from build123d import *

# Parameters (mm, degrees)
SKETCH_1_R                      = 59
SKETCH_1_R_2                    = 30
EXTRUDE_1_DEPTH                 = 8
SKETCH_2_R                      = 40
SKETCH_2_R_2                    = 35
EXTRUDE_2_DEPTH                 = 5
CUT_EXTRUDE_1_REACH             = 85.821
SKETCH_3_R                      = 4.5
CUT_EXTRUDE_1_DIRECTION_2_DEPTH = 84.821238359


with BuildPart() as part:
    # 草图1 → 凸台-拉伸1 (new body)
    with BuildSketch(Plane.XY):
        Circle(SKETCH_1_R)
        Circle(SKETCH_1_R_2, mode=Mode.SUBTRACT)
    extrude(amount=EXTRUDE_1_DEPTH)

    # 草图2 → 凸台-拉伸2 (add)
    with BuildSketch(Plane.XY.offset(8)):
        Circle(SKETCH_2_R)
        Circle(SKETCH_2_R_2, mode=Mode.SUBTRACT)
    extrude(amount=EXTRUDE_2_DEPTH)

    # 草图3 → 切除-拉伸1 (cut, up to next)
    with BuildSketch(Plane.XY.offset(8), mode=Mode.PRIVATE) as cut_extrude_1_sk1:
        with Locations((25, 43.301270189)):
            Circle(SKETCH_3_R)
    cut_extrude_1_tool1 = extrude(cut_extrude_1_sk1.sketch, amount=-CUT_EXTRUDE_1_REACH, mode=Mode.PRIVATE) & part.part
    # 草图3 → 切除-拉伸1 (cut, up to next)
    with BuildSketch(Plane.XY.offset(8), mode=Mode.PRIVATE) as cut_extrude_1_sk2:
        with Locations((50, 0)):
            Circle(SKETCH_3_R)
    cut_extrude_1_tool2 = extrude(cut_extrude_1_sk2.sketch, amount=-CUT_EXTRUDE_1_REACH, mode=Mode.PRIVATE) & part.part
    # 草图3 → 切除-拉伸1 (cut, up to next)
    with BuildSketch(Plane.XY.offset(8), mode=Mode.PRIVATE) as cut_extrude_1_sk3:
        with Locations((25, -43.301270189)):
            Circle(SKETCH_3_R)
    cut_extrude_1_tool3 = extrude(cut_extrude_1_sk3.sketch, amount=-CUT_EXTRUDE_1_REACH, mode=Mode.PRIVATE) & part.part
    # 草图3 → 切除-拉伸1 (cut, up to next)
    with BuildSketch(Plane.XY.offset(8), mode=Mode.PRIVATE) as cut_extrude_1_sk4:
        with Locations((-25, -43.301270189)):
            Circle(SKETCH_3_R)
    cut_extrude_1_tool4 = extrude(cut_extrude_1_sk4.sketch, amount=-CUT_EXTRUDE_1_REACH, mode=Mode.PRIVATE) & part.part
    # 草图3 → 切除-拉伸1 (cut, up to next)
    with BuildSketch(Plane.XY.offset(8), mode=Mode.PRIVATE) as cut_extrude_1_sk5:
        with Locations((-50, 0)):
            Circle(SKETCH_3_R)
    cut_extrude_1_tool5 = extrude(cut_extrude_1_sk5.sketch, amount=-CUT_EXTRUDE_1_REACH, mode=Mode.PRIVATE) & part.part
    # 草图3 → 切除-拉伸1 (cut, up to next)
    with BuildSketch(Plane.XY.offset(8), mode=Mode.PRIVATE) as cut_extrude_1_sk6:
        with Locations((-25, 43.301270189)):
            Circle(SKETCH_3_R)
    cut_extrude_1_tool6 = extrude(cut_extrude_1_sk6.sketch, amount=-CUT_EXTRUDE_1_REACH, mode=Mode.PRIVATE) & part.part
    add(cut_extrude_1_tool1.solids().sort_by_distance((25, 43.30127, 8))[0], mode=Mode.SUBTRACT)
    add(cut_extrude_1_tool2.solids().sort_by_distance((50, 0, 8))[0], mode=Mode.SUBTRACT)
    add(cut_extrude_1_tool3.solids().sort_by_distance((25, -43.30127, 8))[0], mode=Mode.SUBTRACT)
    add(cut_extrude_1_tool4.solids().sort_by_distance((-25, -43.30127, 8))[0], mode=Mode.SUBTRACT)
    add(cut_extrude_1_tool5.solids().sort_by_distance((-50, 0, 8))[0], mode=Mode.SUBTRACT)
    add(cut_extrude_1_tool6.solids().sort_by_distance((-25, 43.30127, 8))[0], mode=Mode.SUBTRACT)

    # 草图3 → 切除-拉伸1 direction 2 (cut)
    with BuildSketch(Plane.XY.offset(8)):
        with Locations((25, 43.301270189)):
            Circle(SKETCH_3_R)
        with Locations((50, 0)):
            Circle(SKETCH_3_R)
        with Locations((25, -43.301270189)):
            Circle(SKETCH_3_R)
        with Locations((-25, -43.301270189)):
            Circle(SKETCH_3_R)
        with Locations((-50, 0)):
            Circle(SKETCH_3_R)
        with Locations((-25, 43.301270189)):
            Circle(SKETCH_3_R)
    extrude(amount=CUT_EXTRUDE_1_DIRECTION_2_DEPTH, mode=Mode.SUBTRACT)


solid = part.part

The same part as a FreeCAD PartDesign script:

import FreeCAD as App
import Part
import Sketcher

V = App.Vector

doc = App.newDocument("Part")
body = doc.addObject("PartDesign::Body", "Body")

# Sketch on XY plane
sketch1 = doc.addObject("Sketcher::SketchObject", "Sketch")
body.addObject(sketch1)
sketch1.AttachmentSupport = (doc.XY_Plane, [""])
sketch1.MapMode = "FlatFace"
sketch1.addGeometry([
    Part.Circle(V(0, 0, 0), V(0, 0, 1), 59),
    Part.Circle(V(0, 0, 0), V(0, 0, 1), 30),
], False)
sketch1.addConstraint([
    Sketcher.Constraint("Coincident", 0, 3, -1, 1),
    Sketcher.Constraint("Coincident", 1, 3, -1, 1),
    Sketcher.Constraint("Diameter", 0, 118.0),
    Sketcher.Constraint("Diameter", 1, 60.0),
])
pad1 = doc.addObject("PartDesign::Pad", "Pad")
body.addObject(pad1)
pad1.Profile = sketch1
pad1.Length = 8

# Sketch on XY plane
sketch2 = doc.addObject("Sketcher::SketchObject", "Sketch001")
body.addObject(sketch2)
sketch2.AttachmentSupport = (doc.XY_Plane, [""])
sketch2.MapMode = "FlatFace"
sketch2.AttachmentOffset = App.Placement(V(0, 0, 8), App.Rotation())
sketch2.addGeometry([
    Part.Circle(V(0, 0, 0), V(0, 0, 1), 40),
    Part.Circle(V(0, 0, 0), V(0, 0, 1), 35),
], False)
sketch2.addConstraint([
    Sketcher.Constraint("Coincident", 0, 3, -1, 1),
    Sketcher.Constraint("Coincident", 1, 3, -1, 1),
    Sketcher.Constraint("Diameter", 0, 80.0),
    Sketcher.Constraint("Diameter", 1, 70.0),
])
pad2 = doc.addObject("PartDesign::Pad", "Pad001")
body.addObject(pad2)
pad2.Profile = sketch2
pad2.Length = 5

# Sketch on XY plane
sketch3 = doc.addObject("Sketcher::SketchObject", "Sketch002")
body.addObject(sketch3)
sketch3.AttachmentSupport = (doc.XY_Plane, [""])
sketch3.MapMode = "FlatFace"
sketch3.AttachmentOffset = App.Placement(V(0, 0, 8), App.Rotation())
sketch3.addGeometry(Part.Circle(V(25, 43.30127, 0), V(0, 0, 1), 4.5), False)
sketch3.addConstraint([
    Sketcher.Constraint("Diameter", 0, 9.0),
    Sketcher.Constraint("DistanceX", -1, 1, 0, 3, 25.0),
    Sketcher.Constraint("DistanceY", -1, 1, 0, 3, 43.30127),
])
pocket1 = doc.addObject("PartDesign::Pocket", "Pocket")
body.addObject(pocket1)
pocket1.Profile = sketch3
pocket1.Type = "UpToFirst"

# Sketch on XY plane
sketch4 = doc.addObject("Sketcher::SketchObject", "Sketch003")
body.addObject(sketch4)
sketch4.AttachmentSupport = (doc.XY_Plane, [""])
sketch4.MapMode = "FlatFace"
sketch4.AttachmentOffset = App.Placement(V(0, 0, 8), App.Rotation())
sketch4.addGeometry(Part.Circle(V(50, 0, 0), V(0, 0, 1), 4.5), False)
sketch4.addConstraint([
    Sketcher.Constraint("PointOnObject", 0, 3, -1),
    Sketcher.Constraint("Diameter", 0, 9.0),
    Sketcher.Constraint("DistanceX", -1, 1, 0, 3, 50.0),
])
pocket2 = doc.addObject("PartDesign::Pocket", "Pocket001")
body.addObject(pocket2)
pocket2.Profile = sketch4
pocket2.Type = "UpToFirst"

# Sketch on XY plane
sketch5 = doc.addObject("Sketcher::SketchObject", "Sketch004")
body.addObject(sketch5)
sketch5.AttachmentSupport = (doc.XY_Plane, [""])
sketch5.MapMode = "FlatFace"
sketch5.AttachmentOffset = App.Placement(V(0, 0, 8), App.Rotation())
sketch5.addGeometry(Part.Circle(V(25, -43.30127, 0), V(0, 0, 1), 4.5), False)
sketch5.addConstraint([
    Sketcher.Constraint("Diameter", 0, 9.0),
    Sketcher.Constraint("DistanceX", -1, 1, 0, 3, 25.0),
    Sketcher.Constraint("DistanceY", 0, 3, -1, 1, 43.30127),
])
pocket3 = doc.addObject("PartDesign::Pocket", "Pocket002")
body.addObject(pocket3)
pocket3.Profile = sketch5
pocket3.Type = "UpToFirst"

# Sketch on XY plane
sketch6 = doc.addObject("Sketcher::SketchObject", "Sketch005")
body.addObject(sketch6)
sketch6.AttachmentSupport = (doc.XY_Plane, [""])
sketch6.MapMode = "FlatFace"
sketch6.AttachmentOffset = App.Placement(V(0, 0, 8), App.Rotation())
sketch6.addGeometry(Part.Circle(V(-25, -43.30127, 0), V(0, 0, 1), 4.5), False)
sketch6.addConstraint([
    Sketcher.Constraint("Diameter", 0, 9.0),
    Sketcher.Constraint("DistanceX", 0, 3, -1, 1, 25.0),
    Sketcher.Constraint("DistanceY", 0, 3, -1, 1, 43.30127),
])
pocket4 = doc.addObject("PartDesign::Pocket", "Pocket003")
body.addObject(pocket4)
pocket4.Profile = sketch6
pocket4.Type = "UpToFirst"

# Sketch on XY plane
sketch7 = doc.addObject("Sketcher::SketchObject", "Sketch006")
body.addObject(sketch7)
sketch7.AttachmentSupport = (doc.XY_Plane, [""])
sketch7.MapMode = "FlatFace"
sketch7.AttachmentOffset = App.Placement(V(0, 0, 8), App.Rotation())
sketch7.addGeometry(Part.Circle(V(-50, 0, 0), V(0, 0, 1), 4.5), False)
sketch7.addConstraint([
    Sketcher.Constraint("PointOnObject", 0, 3, -1),
    Sketcher.Constraint("Diameter", 0, 9.0),
    Sketcher.Constraint("DistanceX", 0, 3, -1, 1, 50.0),
])
pocket5 = doc.addObject("PartDesign::Pocket", "Pocket004")
body.addObject(pocket5)
pocket5.Profile = sketch7
pocket5.Type = "UpToFirst"

# Sketch on XY plane
sketch8 = doc.addObject("Sketcher::SketchObject", "Sketch007")
body.addObject(sketch8)
sketch8.AttachmentSupport = (doc.XY_Plane, [""])
sketch8.MapMode = "FlatFace"
sketch8.AttachmentOffset = App.Placement(V(0, 0, 8), App.Rotation())
sketch8.addGeometry(Part.Circle(V(-25, 43.30127, 0), V(0, 0, 1), 4.5), False)
sketch8.addConstraint([
    Sketcher.Constraint("Diameter", 0, 9.0),
    Sketcher.Constraint("DistanceX", 0, 3, -1, 1, 25.0),
    Sketcher.Constraint("DistanceY", -1, 1, 0, 3, 43.30127),
])
pocket6 = doc.addObject("PartDesign::Pocket", "Pocket005")
body.addObject(pocket6)
pocket6.Profile = sketch8
pocket6.Type = "UpToFirst"

# Sketch on XY plane
sketch9 = doc.addObject("Sketcher::SketchObject", "Sketch008")
body.addObject(sketch9)
sketch9.AttachmentSupport = (doc.XY_Plane, [""])
sketch9.MapMode = "FlatFace"
sketch9.AttachmentOffset = App.Placement(V(0, 0, 8), App.Rotation())
sketch9.addGeometry([
    Part.Circle(V(25, 43.30127, 0), V(0, 0, 1), 4.5),  # 0
    Part.Circle(V(50, 0, 0), V(0, 0, 1), 4.5),  # 1
    Part.Circle(V(25, -43.30127, 0), V(0, 0, 1), 4.5),  # 2
    Part.Circle(V(-25, -43.30127, 0), V(0, 0, 1), 4.5),  # 3
    Part.Circle(V(-50, 0, 0), V(0, 0, 1), 4.5),  # 4
    Part.Circle(V(-25, 43.30127, 0), V(0, 0, 1), 4.5),  # 5
], False)
sketch9.addConstraint([
    Sketcher.Constraint("Equal", 0, 1),
    Sketcher.Constraint("Equal", 1, 2),
    Sketcher.Constraint("Equal", 2, 3),
    Sketcher.Constraint("Equal", 3, 4),
    Sketcher.Constraint("Equal", 4, 5),
    Sketcher.Constraint("Symmetric", 0, 3, 3, 3, -1, 1),
    Sketcher.Constraint("Symmetric", 1, 3, 4, 3, -1, 1),
    Sketcher.Constraint("Symmetric", 2, 3, 5, 3, -1, 1),
    Sketcher.Constraint("Symmetric", 2, 3, 3, 3, -2),
    Sketcher.Constraint("PointOnObject", 1, 3, -1),
    Sketcher.Constraint("Diameter", 0, 9.0),
    Sketcher.Constraint("DistanceX", -1, 1, 0, 3, 25.0),
    Sketcher.Constraint("DistanceX", -1, 1, 1, 3, 50.0),
    Sketcher.Constraint("DistanceY", -1, 1, 0, 3, 43.30127),
])
pocket7 = doc.addObject("PartDesign::Pocket", "Pocket006")
body.addObject(pocket7)
pocket7.Profile = sketch9
pocket7.Length = 84.821238
pocket7.Reversed = True

doc.recompute()
